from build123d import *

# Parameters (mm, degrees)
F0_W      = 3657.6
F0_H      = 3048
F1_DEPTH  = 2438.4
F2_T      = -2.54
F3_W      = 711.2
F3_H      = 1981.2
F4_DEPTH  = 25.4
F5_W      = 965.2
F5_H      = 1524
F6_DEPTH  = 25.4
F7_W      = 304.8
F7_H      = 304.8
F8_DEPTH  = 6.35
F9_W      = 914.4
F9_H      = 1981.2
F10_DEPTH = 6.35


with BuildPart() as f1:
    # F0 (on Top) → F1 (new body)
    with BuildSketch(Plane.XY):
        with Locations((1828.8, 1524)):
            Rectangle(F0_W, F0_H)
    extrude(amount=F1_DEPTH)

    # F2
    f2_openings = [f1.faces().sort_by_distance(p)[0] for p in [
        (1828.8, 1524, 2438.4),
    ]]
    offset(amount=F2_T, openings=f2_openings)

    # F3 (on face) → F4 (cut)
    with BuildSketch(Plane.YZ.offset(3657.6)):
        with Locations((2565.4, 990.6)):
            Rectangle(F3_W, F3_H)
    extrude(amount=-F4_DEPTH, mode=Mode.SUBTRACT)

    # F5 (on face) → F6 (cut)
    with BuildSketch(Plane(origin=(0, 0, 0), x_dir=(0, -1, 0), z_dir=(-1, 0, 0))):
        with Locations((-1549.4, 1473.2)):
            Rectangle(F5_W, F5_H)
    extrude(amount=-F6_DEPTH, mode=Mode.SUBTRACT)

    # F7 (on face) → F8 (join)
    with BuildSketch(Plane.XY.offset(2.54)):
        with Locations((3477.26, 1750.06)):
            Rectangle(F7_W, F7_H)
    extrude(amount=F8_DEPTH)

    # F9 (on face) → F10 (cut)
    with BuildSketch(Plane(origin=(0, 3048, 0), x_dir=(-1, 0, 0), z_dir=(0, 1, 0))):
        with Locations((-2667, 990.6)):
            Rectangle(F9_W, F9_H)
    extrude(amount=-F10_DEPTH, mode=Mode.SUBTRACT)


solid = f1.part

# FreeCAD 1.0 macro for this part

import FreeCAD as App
import Part
import Sketcher
from FreeCAD import Vector
Q = App.Units.Quantity


def faces_at(feature, points):
    """Names of the faces that lie closest to the given points."""
    faces = feature.Shape.Faces
    near = lambda p: min(range(len(faces)), key=lambda i: faces[i].distToShape(Part.Vertex(*p))[0])
    return sorted({f"Face{near(p) + 1}" for p in points})

doc = App.newDocument("Part")
body = doc.addObject("PartDesign::Body", "Body")

# Sketch on XY plane
sketch1 = body.newObject("Sketcher::SketchObject", "Sketch")
sketch1.AttachmentSupport = (doc.getObject("XY_Plane"), [""])
sketch1.MapMode = "FlatFace"
sketch1.addGeometry(Part.LineSegment(Vector(0, 3048, 0), Vector(0, 0, 0)), False)
sketch1.addGeometry(Part.LineSegment(Vector(0, 0, 0), Vector(3658, 0, 0)), False)
sketch1.addGeometry(Part.LineSegment(Vector(3658, 0, 0), Vector(3658, 3048, 0)), False)
sketch1.addGeometry(Part.LineSegment(Vector(3658, 3048, 0), Vector(0, 3048, 0)), False)
sketch1.addConstraint(Sketcher.Constraint("Coincident", 0, 2, 1, 1))
sketch1.addConstraint(Sketcher.Constraint("Coincident", 1, 2, 2, 1))
sketch1.addConstraint(Sketcher.Constraint("Coincident", 2, 2, 3, 1))
sketch1.addConstraint(Sketcher.Constraint("Coincident", 3, 2, 0, 1))
sketch1.addConstraint(Sketcher.Constraint("Vertical", 0))
sketch1.addConstraint(Sketcher.Constraint("Horizontal", 1))
sketch1.addConstraint(Sketcher.Constraint("Vertical", 2))
sketch1.addConstraint(Sketcher.Constraint("Horizontal", 3))
sketch1.addConstraint(Sketcher.Constraint("Coincident", 0, 2, -1, 1))
sketch1.addConstraint(Sketcher.Constraint("DistanceX", 1, 1, 1, 2, Q("144 in")))
sketch1.addConstraint(Sketcher.Constraint("DistanceY", 0, 2, 0, 1, Q("120 in")))
pad1 = body.newObject("PartDesign::Pad", "Pad")
pad1.Profile = sketch1
pad1.Length = Q("96 in")
doc.recompute()

thickness = body.newObject("PartDesign::Thickness", "Thickness")
thickness.Base = (pad1, faces_at(pad1, [(1828.8, 1524, 2438.4)]))
thickness.Value = Q("0.1 in")
thickness.Reversed = True
thickness.Join = "Arc"

# Sketch on YZ plane
sketch2 = body.newObject("Sketcher::SketchObject", "Sketch001")
sketch2.AttachmentSupport = (doc.getObject("YZ_Plane"), [""])
sketch2.MapMode = "FlatFace"
sketch2.AttachmentOffset = App.Placement(Vector(0, 0, 144 * 25.4), App.Rotation())
sketch2.addGeometry(Part.LineSegment(Vector(2210, 1981, 0), Vector(2210, 0, 0)), False)
sketch2.addGeometry(Part.LineSegment(Vector(2210, 0, 0), Vector(2921, 0, 0)), False)
sketch2.addGeometry(Part.LineSegment(Vector(2921, 0, 0), Vector(2921, 1981, 0)), False)
sketch2.addGeometry(Part.LineSegment(Vector(2921, 1981, 0), Vector(2210, 1981, 0)), False)
sketch2.addConstraint(Sketcher.Constraint("Coincident", 0, 2, 1, 1))
sketch2.addConstraint(Sketcher.Constraint("Coincident", 1, 2, 2, 1))
sketch2.addConstraint(Sketcher.Constraint("Coincident", 2, 2, 3, 1))
sketch2.addConstraint(Sketcher.Constraint("Coincident", 3, 2, 0, 1))
sketch2.addConstraint(Sketcher.Constraint("Vertical", 0))
sketch2.addConstraint(Sketcher.Constraint("Horizontal", 1))
sketch2.addConstraint(Sketcher.Constraint("Vertical", 2))
sketch2.addConstraint(Sketcher.Constraint("Horizontal", 3))
sketch2.addConstraint(Sketcher.Constraint("PointOnObject", 0, 2, -1))
sketch2.addConstraint(Sketcher.Constraint("DistanceX", 1, 1, 1, 2, Q("28 in")))
sketch2.addConstraint(Sketcher.Constraint("DistanceY", 0, 2, 0, 1, Q("78 in")))
sketch2.addConstraint(Sketcher.Constraint("DistanceX", -1, 1, 0, 2, Q("87 in")))
pocket1 = body.newObject("PartDesign::Pocket", "Pocket")
pocket1.Profile = sketch2
pocket1.Length = Q("1 in")

# Sketch on YZ plane
sketch3 = body.newObject("Sketcher::SketchObject", "Sketch002")
sketch3.AttachmentSupport = (doc.getObject("YZ_Plane"), [""])
sketch3.MapMode = "FlatFace"
sketch3.addGeometry(Part.LineSegment(Vector(2032, 2235, 0), Vector(2032, 711, 0)), False)
sketch3.addGeometry(Part.LineSegment(Vector(2032, 711, 0), Vector(1067, 711, 0)), False)
sketch3.addGeometry(Part.LineSegment(Vector(1067, 711, 0), Vector(1067, 2235, 0)), False)
sketch3.addGeometry(Part.LineSegment(Vector(1067, 2235, 0), Vector(2032, 2235, 0)), False)
sketch3.addConstraint(Sketcher.Constraint("Coincident", 0, 2, 1, 1))
sketch3.addConstraint(Sketcher.Constraint("Coincident", 1, 2, 2, 1))
sketch3.addConstraint(Sketcher.Constraint("Coincident", 2, 2, 3, 1))
sketch3.addConstraint(Sketcher.Constraint("Coincident", 3, 2, 0, 1))
sketch3.addConstraint(Sketcher.Constraint("Vertical", 0))
sketch3.addConstraint(Sketcher.Constraint("Horizontal", 1))
sketch3.addConstraint(Sketcher.Constraint("Vertical", 2))
sketch3.addConstraint(Sketcher.Constraint("Horizontal", 3))
sketch3.addConstraint(Sketcher.Constraint("DistanceX", 1, 2, 1, 1, Q("38 in")))
sketch3.addConstraint(Sketcher.Constraint("DistanceY", 0, 2, 0, 1, Q("60 in")))
sketch3.addConstraint(Sketcher.Constraint("DistanceX", -1, 1, 0, 2, Q("80 in")))
sketch3.addConstraint(Sketcher.Constraint("DistanceY", -1, 1, 0, 2, Q("28 in")))
pocket2 = body.newObject("PartDesign::Pocket", "Pocket001")
pocket2.Profile = sketch3
pocket2.Length = Q("1 in")
pocket2.Reversed = True

# Sketch on XY plane
sketch4 = body.newObject("Sketcher::SketchObject", "Sketch003")
sketch4.AttachmentSupport = (doc.getObject("XY_Plane"), [""])
sketch4.MapMode = "FlatFace"
sketch4.AttachmentOffset = App.Placement(Vector(0, 0, 0.1 * 25.4), App.Rotation())
sketch4.addGeometry(Part.LineSegment(Vector(3325, 1902, 0), Vector(3325, 1598, 0)), False)
sketch4.addGeometry(Part.LineSegment(Vector(3325, 1598, 0), Vector(3630, 1598, 0)), False)
sketch4.addGeometry(Part.LineSegment(Vector(3630, 1598, 0), Vector(3630, 1902, 0)), False)
sketch4.addGeometry(Part.LineSegment(Vector(3630, 1902, 0), Vector(3325, 1902, 0)), False)
sketch4.addConstraint(Sketcher.Constraint("Coincident", 0, 2, 1, 1))
sketch4.addConstraint(Sketcher.Constraint("Coincident", 1, 2, 2, 1))
sketch4.addConstraint(Sketcher.Constraint("Coincident", 2, 2, 3, 1))
sketch4.addConstraint(Sketcher.Constraint("Coincident", 3, 2, 0, 1))
sketch4.addConstraint(Sketcher.Constraint("Vertical", 0))
sketch4.addConstraint(Sketcher.Constraint("Horizontal", 1))
sketch4.addConstraint(Sketcher.Constraint("Vertical", 2))
sketch4.addConstraint(Sketcher.Constraint("Horizontal", 3))
sketch4.addConstraint(Sketcher.Constraint("Equal", 3, 0))
sketch4.addConstraint(Sketcher.Constraint("DistanceX", 1, 1, 1, 2, Q("12 in")))
sketch4.addConstraint(Sketcher.Constraint("DistanceX", -1, 1, 0, 2, Q("130.9 in")))
sketch4.addConstraint(Sketcher.Constraint("DistanceY", -1, 1, 0, 2, Q("62.9 in")))
pad2 = body.newObject("PartDesign::Pad", "Pad001")
pad2.Profile = sketch4
pad2.Length = Q("0.25 in")

# Sketch on XZ plane
sketch5 = body.newObject("Sketcher::SketchObject", "Sketch004")
sketch5.AttachmentSupport = (doc.getObject("XZ_Plane"), [""])
sketch5.MapMode = "FlatFace"
sketch5.AttachmentOffset = App.Placement(Vector(0, 0, -120 * 25.4), App.Rotation())
sketch5.addGeometry(Part.LineSegment(Vector(3124, 1981, 0), Vector(3124, 0, 0)), False)
sketch5.addGeometry(Part.LineSegment(Vector(3124, 0, 0), Vector(2210, 0, 0)), False)
sketch5.addGeometry(Part.LineSegment(Vector(2210, 0, 0), Vector(2210, 1981, 0)), False)
sketch5.addGeometry(Part.LineSegment(Vector(2210, 1981, 0), Vector(3124, 1981, 0)), False)
sketch5.addConstraint(Sketcher.Constraint("Coincident", 0, 2, 1, 1))
sketch5.addConstraint(Sketcher.Constraint("Coincident", 1, 2, 2, 1))
sketch5.addConstraint(Sketcher.Constraint("Coincident", 2, 2, 3, 1))
sketch5.addConstraint(Sketcher.Constraint("Coincident", 3, 2, 0, 1))
sketch5.addConstraint(Sketcher.Constraint("Vertical", 0))
sketch5.addConstraint(Sketcher.Constraint("Horizontal", 1))
sketch5.addConstraint(Sketcher.Constraint("Vertical", 2))
sketch5.addConstraint(Sketcher.Constraint("Horizontal", 3))
sketch5.addConstraint(Sketcher.Constraint("PointOnObject", 0, 2, -1))
sketch5.addConstraint(Sketcher.Constraint("DistanceX", 1, 2, 1, 1, Q("36 in")))
sketch5.addConstraint(Sketcher.Constraint("DistanceY", 0, 2, 0, 1, Q("78 in")))
sketch5.addConstraint(Sketcher.Constraint("DistanceX", -1, 1, 0, 2, Q("123 in")))
pocket3 = body.newObject("PartDesign::Pocket", "Pocket002")
pocket3.Profile = sketch5
pocket3.Length = Q("0.25 in")
pocket3.Reversed = True

doc.recompute()
